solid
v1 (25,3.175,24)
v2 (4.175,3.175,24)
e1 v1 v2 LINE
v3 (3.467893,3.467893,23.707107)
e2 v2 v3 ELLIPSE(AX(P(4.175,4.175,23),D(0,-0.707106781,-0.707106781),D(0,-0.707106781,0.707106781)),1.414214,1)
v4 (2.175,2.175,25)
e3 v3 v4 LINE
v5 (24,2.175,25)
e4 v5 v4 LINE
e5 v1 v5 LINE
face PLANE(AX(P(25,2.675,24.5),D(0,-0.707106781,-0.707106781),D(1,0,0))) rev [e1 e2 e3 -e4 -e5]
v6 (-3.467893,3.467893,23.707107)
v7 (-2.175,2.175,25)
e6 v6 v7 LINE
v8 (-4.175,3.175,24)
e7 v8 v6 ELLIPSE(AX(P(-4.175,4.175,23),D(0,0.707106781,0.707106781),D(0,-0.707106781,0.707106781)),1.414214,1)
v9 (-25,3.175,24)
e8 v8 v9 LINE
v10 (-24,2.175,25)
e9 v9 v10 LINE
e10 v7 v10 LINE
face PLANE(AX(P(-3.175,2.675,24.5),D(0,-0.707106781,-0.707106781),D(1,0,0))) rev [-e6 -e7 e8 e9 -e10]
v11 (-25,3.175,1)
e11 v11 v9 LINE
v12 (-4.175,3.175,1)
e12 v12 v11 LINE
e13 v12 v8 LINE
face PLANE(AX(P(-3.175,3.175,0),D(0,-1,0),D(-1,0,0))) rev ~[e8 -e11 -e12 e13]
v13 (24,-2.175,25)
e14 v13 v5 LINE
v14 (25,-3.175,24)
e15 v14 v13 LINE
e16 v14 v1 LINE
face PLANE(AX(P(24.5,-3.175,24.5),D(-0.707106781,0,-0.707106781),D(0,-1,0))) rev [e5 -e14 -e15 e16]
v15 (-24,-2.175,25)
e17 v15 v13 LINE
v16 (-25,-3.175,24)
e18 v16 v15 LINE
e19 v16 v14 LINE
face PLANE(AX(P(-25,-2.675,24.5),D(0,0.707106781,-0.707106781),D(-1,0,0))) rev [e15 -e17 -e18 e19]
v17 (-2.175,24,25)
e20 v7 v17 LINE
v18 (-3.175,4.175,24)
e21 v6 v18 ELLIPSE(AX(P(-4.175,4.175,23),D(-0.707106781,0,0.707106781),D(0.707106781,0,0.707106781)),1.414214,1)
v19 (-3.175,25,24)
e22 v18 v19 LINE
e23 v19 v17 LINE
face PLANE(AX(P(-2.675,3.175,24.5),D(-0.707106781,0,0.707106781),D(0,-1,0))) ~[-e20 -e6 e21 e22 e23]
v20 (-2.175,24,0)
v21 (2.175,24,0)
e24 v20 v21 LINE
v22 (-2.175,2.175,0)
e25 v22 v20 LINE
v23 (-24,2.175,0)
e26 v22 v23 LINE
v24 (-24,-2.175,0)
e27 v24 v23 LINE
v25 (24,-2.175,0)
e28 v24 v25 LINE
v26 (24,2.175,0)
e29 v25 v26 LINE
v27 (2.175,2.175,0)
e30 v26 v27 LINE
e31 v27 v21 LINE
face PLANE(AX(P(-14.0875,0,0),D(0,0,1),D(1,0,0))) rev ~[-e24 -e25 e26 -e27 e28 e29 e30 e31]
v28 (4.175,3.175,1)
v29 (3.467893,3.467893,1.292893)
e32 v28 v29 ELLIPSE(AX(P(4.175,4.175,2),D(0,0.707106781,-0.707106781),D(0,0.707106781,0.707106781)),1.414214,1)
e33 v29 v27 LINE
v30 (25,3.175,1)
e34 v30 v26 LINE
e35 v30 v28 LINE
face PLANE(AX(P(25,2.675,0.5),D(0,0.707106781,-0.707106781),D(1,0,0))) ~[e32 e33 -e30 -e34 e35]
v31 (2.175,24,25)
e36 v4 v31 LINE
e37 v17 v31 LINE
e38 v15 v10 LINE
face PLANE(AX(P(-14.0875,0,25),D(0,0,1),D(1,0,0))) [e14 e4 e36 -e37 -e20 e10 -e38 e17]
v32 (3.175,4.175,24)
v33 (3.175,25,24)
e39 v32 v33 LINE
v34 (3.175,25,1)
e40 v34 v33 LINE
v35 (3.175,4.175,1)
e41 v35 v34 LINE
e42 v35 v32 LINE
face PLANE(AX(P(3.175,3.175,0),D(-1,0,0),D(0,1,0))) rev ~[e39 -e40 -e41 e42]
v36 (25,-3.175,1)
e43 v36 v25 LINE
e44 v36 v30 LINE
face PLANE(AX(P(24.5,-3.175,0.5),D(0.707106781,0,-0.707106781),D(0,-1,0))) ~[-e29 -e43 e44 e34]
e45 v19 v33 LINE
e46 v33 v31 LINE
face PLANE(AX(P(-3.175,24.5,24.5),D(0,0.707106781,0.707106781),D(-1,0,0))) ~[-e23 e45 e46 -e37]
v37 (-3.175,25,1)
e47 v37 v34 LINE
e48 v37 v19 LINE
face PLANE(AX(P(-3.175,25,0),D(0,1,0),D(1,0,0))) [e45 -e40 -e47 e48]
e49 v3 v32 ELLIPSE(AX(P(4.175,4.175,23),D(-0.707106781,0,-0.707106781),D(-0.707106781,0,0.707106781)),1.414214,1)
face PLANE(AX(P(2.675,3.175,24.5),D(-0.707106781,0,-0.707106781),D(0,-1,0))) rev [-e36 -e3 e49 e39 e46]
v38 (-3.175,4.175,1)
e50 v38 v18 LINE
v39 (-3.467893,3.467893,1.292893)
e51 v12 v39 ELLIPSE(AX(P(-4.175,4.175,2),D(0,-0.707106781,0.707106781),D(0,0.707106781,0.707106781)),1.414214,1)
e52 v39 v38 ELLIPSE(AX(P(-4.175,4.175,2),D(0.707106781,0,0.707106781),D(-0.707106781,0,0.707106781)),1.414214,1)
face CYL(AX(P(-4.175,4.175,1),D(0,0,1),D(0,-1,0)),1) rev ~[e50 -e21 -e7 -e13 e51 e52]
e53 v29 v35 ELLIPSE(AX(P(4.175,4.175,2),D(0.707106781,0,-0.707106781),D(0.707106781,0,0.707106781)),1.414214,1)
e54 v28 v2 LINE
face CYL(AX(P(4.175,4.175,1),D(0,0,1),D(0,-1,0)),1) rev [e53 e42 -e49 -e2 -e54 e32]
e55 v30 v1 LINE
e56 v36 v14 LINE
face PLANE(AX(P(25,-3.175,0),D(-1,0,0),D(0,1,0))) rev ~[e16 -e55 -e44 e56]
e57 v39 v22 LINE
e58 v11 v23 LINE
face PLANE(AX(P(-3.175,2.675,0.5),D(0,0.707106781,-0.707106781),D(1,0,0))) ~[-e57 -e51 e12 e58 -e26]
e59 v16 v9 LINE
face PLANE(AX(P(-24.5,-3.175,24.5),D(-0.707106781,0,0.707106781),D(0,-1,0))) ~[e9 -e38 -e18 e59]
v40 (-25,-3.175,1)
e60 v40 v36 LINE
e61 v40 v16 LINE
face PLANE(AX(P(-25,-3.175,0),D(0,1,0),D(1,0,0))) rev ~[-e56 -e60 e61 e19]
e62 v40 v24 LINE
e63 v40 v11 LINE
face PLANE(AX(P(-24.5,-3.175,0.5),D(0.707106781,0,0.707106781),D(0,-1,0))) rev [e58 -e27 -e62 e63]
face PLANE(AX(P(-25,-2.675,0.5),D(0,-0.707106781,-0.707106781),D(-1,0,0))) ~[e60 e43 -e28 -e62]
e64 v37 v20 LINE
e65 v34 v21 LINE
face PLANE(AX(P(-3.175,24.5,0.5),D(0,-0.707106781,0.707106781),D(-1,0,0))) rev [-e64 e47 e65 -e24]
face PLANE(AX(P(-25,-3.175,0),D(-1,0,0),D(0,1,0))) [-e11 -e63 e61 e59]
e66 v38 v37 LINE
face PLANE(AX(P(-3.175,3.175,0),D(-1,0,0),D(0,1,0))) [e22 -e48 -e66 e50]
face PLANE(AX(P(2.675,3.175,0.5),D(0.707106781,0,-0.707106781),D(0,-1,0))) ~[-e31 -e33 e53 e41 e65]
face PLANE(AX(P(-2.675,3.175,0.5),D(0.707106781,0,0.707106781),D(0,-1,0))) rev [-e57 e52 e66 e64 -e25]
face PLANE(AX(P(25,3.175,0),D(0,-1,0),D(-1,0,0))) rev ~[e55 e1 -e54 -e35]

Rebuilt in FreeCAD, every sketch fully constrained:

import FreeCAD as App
import Part
import Sketcher


def edges_at(feature, points):
    """Names of the edges that pass closest to the given points."""
    edges = feature.Shape.Edges
    near = lambda p: min(range(len(edges)), key=lambda i: edges[i].distToShape(Part.Vertex(*p))[0])
    return sorted({f"Edge{near(p) + 1}" for p in points})


def add_polygon(sketch, points):
    """Adds a closed chain of lines whose ends are joined by coincident constraints."""
    first, n = sketch.GeometryCount, len(points)
    for a, b in zip(points, points[1:] + points[:1]):
        sketch.addGeometry(Part.LineSegment(App.Vector(*a, 0), App.Vector(*b, 0)), False)
    for i in range(n):
        sketch.addConstraint(Sketcher.Constraint("Coincident", first + i, 2, first + (i + 1) % n, 1))

doc = App.newDocument("Part")
params = doc.addObject("Spreadsheet::Sheet", "Params")
for row, (alias, value) in enumerate([
    ("sketch1_width", "50 mm"),
    ("sketch1_width2", "6.35 mm"),
    ("pad1_length", "25 mm"),
    ("chamfer_size", "1 mm"),
    ("fillet_radius", "1 mm"),
], start=1):
    params.set(f"A{row}", alias)
    params.set(f"B{row}", "=" + value)
    params.setAlias(f"B{row}", alias)

body = doc.addObject("PartDesign::Body", "Body")

# Sketch on XY plane
sketch1 = body.newObject("Sketcher::SketchObject", "Sketch")
sketch1.AttachmentSupport = (doc.getObject("XY_Plane"), [""])
sketch1.MapMode = "FlatFace"
add_polygon(sketch1, [(-25, 3), (-25, -3), (25, -3), (25, 3), (3, 3), (3, 25), (-3, 25), (-3, 3)])  # lines 0-7
sketch1.addConstraint([
    Sketcher.Constraint("Vertical", 0),
    Sketcher.Constraint("Horizontal", 1),
    Sketcher.Constraint("Vertical", 2),
    Sketcher.Constraint("Horizontal", 3),
    Sketcher.Constraint("Vertical", 4),
    Sketcher.Constraint("Horizontal", 5),
    Sketcher.Constraint("Vertical", 6),
    Sketcher.Constraint("Horizontal", 7),
    Sketcher.Constraint("Symmetric", 0, 2, 2, 2, -1, 1),
    Sketcher.Constraint("Symmetric", 3, 2, 6, 2, -2),
    Sketcher.Constraint("Equal", 5, 0),
    Sketcher.Constraint("Equal", 7, 4),
    Sketcher.Constraint("DistanceX", 1, 1, 1, 2, 50.0),
    Sketcher.Constraint("DistanceX", 5, 2, 5, 1, 6.35),
])
sketch1.setExpression("Constraints[20]", "Params.sketch1_width")
sketch1.setExpression("Constraints[21]", "Params.sketch1_width2")
pad1 = body.newObject("PartDesign::Pad", "Pad")
pad1.Profile = sketch1
pad1.setExpression("Length", "Params.pad1_length")
doc.recompute()

chamfer = body.newObject("PartDesign::Chamfer", "Chamfer")
chamfer.Base = (pad1, edges_at(pad1, [
    (-25, 0, 0),
    (0, -3.175, 0),
    (25, 0, 0),
    (14.088, 3.175, 0),
    (3.175, 14.088, 0),
    (0, 25, 0),
    (-3.175, 14.088, 0),
    (-14.088, 3.175, 0),
    (-25, 0, 25),
    (0, -3.175, 25),
    (25, 0, 25),
    (14.088, 3.175, 25),
    (3.175, 14.088, 25),
    (0, 25, 25),
    (-3.175, 14.088, 25),
    (-14.088, 3.175, 25),
]))
chamfer.setExpression("Size", "Params.chamfer_size")
doc.recompute()

fillet = body.newObject("PartDesign::Fillet", "Fillet")
fillet.Base = (chamfer, edges_at(chamfer, [(3.175, 3.175, 12.5), (-3.175, 3.175, 12.5)]))
fillet.setExpression("Radius", "Params.fillet_radius")

doc.recompute()
